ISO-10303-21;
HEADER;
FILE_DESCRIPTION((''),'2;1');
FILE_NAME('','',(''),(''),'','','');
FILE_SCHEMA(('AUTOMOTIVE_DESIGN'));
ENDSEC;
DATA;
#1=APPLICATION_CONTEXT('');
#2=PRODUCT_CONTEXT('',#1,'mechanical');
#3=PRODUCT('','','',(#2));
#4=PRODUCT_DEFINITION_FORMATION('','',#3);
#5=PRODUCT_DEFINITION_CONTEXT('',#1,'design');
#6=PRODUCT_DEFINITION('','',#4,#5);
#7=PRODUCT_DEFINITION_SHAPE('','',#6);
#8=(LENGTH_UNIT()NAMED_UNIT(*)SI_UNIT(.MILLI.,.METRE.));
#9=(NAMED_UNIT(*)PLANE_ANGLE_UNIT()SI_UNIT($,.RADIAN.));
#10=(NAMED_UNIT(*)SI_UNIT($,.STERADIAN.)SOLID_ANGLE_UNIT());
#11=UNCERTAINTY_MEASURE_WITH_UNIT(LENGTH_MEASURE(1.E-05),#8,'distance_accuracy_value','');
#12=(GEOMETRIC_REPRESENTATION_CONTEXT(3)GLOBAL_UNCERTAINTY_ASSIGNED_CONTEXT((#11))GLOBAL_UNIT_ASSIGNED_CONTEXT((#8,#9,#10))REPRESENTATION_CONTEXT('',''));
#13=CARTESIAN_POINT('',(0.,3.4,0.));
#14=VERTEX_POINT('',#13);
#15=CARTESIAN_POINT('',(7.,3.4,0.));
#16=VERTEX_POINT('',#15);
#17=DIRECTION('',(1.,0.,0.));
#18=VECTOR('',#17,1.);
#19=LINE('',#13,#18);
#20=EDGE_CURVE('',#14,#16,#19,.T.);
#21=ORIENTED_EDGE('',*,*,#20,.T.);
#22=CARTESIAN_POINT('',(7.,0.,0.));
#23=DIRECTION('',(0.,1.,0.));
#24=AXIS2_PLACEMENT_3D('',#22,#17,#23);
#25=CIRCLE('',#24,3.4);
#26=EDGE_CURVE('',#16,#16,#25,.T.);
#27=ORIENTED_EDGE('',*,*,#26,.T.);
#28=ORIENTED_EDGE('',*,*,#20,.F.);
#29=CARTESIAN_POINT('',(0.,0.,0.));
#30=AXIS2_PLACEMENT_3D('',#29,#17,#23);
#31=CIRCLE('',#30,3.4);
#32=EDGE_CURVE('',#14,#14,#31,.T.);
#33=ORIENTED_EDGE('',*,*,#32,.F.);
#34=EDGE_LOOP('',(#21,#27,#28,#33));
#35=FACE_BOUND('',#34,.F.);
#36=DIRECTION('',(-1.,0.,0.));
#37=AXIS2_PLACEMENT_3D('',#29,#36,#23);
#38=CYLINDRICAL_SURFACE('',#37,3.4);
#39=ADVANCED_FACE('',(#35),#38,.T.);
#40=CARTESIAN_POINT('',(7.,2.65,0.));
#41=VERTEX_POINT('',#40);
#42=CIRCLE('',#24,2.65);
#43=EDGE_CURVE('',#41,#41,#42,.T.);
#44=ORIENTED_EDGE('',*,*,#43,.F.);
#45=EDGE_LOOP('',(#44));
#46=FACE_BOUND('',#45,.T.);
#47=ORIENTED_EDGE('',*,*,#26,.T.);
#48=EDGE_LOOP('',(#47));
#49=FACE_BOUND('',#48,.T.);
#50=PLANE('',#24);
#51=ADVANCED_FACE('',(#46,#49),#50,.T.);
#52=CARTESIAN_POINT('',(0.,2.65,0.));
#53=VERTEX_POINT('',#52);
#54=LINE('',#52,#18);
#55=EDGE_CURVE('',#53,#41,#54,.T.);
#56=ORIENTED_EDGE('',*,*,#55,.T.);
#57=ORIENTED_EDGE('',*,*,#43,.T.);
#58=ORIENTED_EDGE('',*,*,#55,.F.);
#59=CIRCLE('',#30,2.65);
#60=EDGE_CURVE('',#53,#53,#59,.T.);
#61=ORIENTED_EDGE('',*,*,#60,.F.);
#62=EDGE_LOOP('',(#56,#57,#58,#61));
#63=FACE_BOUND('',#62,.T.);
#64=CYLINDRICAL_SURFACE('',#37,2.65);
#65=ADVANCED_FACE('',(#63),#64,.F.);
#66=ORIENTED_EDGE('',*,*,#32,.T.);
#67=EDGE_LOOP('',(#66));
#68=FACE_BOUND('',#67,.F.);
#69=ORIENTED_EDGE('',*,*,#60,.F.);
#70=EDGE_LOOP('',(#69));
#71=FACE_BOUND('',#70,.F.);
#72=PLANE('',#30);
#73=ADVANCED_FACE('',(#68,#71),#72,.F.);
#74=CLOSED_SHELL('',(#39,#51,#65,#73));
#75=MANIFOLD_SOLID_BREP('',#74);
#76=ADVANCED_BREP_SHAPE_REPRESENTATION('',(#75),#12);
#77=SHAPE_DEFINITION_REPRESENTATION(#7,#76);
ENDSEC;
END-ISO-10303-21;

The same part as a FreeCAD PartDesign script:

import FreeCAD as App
import Part
import Sketcher
Q = App.Units.Quantity

doc = App.newDocument("Part")
body = doc.addObject("PartDesign::Body", "Body")

sketch1 = body.newObject("Sketcher::SketchObject", "Sketch")
sketch1.AttachmentSupport = (doc.getObject("YZ_Plane"), [""])
sketch1.MapMode = "FlatFace"
sketch1.addGeometry([
    Part.Circle(App.Vector(0, 0, 0), App.Vector(0, 0, 1), 3.4),
    Part.Circle(App.Vector(0, 0, 0), App.Vector(0, 0, 1), 2.65),
], False)
sketch1.addConstraint([
    Sketcher.Constraint("Coincident", 0, 3, -1, 1),
    Sketcher.Constraint("Coincident", 1, 3, -1, 1),
    Sketcher.Constraint("Diameter", 0, Q("6.8 mm")),
    Sketcher.Constraint("Diameter", 1, Q("5.3 mm")),
])
pad1 = body.newObject("PartDesign::Pad", "Pad")
pad1.Profile = sketch1
pad1.Length = 7

doc.recompute()
